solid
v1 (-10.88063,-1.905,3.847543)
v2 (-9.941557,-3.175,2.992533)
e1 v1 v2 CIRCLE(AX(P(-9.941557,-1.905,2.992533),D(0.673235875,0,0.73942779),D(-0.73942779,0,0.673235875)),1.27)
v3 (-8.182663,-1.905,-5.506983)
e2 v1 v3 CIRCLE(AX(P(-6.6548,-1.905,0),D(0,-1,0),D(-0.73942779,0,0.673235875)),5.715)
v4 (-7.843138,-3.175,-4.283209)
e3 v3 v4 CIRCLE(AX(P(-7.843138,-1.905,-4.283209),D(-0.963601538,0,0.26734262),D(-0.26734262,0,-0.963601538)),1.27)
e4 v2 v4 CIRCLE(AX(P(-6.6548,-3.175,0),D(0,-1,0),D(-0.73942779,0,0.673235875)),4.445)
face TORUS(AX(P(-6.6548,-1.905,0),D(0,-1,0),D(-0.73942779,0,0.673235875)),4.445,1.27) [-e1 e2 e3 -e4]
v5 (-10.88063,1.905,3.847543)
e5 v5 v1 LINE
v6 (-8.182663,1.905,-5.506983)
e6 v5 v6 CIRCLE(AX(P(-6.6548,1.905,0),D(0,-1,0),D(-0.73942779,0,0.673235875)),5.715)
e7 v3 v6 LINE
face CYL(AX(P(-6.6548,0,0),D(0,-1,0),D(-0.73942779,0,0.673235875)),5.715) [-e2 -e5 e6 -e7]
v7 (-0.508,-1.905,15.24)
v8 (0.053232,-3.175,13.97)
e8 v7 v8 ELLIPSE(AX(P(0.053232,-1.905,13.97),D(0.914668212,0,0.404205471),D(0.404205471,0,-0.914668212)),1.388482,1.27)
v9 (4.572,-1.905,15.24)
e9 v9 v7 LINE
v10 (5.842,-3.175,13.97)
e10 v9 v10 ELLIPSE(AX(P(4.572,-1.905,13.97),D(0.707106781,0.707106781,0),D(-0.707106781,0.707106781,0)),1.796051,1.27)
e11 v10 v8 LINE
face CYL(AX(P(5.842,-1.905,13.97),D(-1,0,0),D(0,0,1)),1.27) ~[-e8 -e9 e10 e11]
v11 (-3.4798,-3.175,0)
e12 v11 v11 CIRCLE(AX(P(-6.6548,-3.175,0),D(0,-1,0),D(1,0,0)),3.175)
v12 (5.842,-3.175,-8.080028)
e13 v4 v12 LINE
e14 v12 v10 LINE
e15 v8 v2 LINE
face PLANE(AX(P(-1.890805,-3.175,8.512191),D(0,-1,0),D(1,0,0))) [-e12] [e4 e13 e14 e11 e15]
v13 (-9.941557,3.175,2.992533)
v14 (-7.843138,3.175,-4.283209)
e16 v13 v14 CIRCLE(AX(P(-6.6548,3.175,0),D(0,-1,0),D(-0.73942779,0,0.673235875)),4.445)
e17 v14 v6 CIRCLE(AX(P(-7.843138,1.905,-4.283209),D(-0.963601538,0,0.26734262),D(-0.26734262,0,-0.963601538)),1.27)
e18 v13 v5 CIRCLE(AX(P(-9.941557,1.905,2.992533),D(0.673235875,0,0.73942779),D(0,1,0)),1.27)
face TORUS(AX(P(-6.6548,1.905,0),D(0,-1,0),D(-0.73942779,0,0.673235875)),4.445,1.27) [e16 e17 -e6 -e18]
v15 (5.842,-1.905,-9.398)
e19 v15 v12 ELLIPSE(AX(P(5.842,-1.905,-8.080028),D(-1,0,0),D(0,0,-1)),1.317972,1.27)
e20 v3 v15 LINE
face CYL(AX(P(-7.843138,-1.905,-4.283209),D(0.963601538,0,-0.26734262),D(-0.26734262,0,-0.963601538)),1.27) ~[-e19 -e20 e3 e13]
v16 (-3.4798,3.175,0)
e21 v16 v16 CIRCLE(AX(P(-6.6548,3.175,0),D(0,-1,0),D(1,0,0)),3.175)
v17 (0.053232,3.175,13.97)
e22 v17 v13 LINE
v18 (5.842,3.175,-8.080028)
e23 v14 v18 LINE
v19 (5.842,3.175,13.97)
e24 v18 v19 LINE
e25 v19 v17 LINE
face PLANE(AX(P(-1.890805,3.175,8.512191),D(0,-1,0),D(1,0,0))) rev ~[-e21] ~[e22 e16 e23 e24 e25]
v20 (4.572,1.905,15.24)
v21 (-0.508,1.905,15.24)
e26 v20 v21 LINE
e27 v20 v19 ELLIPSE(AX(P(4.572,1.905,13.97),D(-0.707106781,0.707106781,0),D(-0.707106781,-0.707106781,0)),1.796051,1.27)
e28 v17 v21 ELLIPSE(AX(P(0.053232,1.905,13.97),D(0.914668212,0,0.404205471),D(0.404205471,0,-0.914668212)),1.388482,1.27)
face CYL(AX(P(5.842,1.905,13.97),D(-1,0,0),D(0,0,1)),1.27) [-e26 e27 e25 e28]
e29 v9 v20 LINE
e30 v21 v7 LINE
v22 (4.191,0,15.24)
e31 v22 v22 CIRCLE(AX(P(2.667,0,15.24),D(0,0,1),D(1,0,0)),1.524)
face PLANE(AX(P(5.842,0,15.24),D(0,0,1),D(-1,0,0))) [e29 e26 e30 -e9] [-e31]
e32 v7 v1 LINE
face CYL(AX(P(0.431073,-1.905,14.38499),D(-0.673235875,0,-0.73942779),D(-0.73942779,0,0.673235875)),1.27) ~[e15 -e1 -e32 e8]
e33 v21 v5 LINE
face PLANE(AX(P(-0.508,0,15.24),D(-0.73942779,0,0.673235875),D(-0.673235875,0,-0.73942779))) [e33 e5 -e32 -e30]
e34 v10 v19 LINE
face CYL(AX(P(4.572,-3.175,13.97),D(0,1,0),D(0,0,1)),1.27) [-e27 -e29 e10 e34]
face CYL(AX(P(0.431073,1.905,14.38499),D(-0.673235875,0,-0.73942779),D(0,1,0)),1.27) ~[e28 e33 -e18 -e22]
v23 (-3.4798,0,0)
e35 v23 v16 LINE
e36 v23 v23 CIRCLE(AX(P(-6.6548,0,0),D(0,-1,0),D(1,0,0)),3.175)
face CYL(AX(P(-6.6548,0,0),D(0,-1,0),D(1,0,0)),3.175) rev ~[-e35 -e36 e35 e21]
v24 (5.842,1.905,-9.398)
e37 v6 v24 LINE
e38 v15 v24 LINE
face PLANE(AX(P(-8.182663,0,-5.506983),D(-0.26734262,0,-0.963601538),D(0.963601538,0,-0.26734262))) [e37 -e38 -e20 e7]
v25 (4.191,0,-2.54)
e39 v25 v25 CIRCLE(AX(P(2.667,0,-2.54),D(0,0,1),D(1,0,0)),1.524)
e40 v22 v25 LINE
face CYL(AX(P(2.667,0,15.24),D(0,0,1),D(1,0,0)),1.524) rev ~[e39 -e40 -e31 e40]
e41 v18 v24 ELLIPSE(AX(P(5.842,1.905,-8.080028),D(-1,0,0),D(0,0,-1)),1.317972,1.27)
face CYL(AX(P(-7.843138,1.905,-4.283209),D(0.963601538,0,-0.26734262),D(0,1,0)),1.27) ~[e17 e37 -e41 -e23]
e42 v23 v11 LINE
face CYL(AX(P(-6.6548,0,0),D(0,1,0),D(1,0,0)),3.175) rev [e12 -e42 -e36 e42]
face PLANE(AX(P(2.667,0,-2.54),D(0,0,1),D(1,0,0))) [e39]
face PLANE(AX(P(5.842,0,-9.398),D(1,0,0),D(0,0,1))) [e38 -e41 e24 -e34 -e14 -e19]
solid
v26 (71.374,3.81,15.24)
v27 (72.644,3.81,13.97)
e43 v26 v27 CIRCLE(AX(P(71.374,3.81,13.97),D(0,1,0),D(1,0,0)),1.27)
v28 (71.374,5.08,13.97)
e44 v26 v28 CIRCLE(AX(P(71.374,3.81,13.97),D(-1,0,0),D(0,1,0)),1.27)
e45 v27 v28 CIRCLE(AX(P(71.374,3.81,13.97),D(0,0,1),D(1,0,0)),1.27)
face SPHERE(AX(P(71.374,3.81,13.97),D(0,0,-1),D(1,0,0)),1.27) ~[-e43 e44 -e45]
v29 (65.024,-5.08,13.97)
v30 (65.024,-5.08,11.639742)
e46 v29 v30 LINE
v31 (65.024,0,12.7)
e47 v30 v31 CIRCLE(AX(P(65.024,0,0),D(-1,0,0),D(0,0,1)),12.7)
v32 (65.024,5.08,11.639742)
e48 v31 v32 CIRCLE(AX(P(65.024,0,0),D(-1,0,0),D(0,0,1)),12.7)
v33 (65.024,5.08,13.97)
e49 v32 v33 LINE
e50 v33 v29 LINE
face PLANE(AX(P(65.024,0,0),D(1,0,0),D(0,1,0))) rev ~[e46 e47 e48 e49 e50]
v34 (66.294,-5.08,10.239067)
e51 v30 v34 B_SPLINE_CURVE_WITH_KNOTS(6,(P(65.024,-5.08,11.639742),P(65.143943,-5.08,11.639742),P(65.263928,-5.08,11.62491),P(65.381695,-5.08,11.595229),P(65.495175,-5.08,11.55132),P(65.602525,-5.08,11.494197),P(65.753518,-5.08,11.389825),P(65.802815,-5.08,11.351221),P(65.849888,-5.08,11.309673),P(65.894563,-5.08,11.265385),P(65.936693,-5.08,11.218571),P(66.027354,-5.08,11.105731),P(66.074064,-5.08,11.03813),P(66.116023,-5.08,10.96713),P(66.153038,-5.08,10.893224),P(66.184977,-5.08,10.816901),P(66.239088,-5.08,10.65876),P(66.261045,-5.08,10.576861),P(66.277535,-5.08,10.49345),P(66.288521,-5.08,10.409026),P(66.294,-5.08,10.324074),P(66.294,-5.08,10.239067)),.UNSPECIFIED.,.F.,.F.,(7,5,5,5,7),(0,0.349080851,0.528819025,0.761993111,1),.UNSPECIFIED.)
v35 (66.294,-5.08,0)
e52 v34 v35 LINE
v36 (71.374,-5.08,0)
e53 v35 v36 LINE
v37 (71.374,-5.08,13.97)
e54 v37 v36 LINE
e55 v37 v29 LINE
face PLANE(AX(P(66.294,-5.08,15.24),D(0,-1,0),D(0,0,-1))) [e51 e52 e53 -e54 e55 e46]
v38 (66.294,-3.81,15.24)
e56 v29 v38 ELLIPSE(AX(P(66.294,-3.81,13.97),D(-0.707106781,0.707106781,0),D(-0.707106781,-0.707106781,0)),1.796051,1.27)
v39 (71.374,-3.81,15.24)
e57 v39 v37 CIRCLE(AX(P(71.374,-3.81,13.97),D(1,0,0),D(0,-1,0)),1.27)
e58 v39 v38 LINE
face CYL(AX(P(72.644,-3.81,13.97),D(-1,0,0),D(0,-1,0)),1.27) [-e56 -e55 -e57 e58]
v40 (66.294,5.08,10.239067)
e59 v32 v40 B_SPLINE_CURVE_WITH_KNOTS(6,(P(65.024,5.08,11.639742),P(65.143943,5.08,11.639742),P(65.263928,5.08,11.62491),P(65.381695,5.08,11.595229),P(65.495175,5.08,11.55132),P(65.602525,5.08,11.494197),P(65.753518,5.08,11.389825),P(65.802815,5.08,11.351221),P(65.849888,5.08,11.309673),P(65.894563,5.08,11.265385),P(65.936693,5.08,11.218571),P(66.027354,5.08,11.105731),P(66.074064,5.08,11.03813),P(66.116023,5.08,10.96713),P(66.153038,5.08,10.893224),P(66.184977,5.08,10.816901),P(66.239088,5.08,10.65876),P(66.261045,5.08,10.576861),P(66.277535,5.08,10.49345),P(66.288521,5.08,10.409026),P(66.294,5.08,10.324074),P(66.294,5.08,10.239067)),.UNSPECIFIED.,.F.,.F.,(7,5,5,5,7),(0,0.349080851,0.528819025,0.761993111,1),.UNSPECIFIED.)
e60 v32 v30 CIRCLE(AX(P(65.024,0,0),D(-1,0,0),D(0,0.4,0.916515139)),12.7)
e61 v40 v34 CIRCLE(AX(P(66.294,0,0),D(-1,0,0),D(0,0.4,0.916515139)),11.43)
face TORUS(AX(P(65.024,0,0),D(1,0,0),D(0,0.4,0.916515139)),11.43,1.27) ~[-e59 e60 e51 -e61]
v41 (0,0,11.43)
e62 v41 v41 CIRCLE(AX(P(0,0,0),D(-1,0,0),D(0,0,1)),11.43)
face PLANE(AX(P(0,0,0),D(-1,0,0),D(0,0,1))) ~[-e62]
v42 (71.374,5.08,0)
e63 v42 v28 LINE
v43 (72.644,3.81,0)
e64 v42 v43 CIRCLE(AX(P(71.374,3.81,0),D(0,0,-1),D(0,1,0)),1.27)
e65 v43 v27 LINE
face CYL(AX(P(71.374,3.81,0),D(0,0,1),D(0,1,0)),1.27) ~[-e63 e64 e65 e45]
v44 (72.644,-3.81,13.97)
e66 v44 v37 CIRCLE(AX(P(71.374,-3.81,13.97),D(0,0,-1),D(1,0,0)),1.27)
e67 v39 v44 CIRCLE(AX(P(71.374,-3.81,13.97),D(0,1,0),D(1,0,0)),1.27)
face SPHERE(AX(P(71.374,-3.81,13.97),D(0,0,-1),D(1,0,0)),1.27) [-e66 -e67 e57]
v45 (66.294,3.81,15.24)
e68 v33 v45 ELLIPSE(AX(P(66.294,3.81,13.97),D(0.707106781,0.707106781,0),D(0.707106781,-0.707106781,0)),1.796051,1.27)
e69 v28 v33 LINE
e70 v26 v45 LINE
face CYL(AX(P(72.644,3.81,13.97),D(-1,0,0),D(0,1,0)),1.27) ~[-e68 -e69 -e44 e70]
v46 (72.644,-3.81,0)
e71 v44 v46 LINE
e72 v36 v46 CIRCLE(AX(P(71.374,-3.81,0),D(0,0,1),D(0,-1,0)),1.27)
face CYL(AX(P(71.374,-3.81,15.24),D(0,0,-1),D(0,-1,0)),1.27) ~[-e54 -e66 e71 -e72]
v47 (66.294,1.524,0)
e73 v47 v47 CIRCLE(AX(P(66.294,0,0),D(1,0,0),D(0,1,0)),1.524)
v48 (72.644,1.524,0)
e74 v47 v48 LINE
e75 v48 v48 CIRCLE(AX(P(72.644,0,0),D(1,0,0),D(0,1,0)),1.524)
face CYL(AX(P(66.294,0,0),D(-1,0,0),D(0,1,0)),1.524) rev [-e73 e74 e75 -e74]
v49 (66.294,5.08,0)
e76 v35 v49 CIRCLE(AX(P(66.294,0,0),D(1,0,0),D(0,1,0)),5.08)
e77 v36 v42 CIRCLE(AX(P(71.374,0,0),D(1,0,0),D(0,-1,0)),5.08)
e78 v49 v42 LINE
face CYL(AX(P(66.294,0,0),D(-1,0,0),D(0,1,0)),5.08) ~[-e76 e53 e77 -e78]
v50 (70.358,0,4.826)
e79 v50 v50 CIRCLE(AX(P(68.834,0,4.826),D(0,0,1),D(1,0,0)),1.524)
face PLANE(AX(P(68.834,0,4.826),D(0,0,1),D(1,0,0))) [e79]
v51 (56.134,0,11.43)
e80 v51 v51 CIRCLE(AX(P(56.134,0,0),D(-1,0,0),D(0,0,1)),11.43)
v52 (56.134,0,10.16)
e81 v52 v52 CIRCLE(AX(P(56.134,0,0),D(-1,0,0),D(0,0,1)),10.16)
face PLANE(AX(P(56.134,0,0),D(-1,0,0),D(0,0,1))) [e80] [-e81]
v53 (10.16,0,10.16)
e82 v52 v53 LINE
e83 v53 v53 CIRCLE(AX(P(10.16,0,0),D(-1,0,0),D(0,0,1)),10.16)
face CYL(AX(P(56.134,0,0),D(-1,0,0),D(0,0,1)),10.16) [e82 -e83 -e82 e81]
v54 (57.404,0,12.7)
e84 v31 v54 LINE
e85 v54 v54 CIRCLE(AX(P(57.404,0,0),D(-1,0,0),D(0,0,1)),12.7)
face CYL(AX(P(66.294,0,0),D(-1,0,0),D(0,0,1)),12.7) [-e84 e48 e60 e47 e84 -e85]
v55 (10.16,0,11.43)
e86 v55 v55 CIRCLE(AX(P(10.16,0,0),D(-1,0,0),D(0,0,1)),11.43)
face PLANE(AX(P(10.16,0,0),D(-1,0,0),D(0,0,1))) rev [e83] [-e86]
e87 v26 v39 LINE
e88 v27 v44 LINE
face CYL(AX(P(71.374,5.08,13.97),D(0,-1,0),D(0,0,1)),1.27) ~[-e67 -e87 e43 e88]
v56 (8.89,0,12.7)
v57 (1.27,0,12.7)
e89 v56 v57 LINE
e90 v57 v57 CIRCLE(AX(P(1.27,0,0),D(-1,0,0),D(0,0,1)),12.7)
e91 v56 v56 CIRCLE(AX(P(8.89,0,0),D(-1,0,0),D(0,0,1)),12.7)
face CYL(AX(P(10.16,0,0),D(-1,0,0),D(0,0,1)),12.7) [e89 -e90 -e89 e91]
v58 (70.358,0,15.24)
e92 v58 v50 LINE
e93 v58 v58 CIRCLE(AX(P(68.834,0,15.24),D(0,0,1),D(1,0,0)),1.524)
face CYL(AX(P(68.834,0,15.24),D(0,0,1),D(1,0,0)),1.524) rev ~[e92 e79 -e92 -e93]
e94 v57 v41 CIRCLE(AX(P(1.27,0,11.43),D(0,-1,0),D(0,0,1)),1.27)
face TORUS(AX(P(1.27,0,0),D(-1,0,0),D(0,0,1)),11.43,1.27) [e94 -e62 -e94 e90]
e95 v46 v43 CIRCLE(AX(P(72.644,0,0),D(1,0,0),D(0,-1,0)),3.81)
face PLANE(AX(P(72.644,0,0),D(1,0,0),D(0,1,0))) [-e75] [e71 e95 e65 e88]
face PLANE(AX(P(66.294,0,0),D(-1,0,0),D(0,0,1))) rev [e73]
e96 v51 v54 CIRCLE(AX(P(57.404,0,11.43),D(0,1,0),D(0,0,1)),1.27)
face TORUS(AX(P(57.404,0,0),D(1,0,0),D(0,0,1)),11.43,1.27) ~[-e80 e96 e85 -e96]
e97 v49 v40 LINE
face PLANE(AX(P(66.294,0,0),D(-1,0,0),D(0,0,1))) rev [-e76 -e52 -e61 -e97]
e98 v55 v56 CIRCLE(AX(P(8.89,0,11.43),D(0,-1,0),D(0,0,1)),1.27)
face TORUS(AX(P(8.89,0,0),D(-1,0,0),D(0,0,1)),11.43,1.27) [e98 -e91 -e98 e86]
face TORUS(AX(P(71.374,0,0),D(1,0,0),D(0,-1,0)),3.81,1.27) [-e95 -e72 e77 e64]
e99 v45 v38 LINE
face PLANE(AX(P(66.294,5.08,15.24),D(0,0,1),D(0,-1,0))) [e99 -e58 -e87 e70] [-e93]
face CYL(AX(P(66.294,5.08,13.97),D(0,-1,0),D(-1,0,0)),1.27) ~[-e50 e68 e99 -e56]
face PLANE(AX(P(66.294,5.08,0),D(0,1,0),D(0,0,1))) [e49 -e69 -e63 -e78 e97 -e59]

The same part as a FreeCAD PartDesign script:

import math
import FreeCAD as App
import Part
import Sketcher
from FreeCAD import Vector
Q = App.Units.Quantity


def edges_at(feature, points):
    """Names of the edges that pass closest to the given points."""
    edges = feature.Shape.Edges
    near = lambda p: min(range(len(edges)), key=lambda i: edges[i].distToShape(Part.Vertex(*p))[0])
    return sorted({f"Edge{near(p) + 1}" for p in points})


def add_polygon(sketch, points):
    """Adds a closed chain of lines whose ends are joined by coincident constraints."""
    first, n = sketch.GeometryCount, len(points)
    for a, b in zip(points, points[1:] + points[:1]):
        sketch.addGeometry(Part.LineSegment(App.Vector(*a, 0), App.Vector(*b, 0)), False)
    for i in range(n):
        sketch.addConstraint(Sketcher.Constraint("Coincident", first + i, 2, first + (i + 1) % n, 1))

doc = App.newDocument("Part")
body = doc.addObject("PartDesign::Body", "Body")

sketch1 = doc.addObject("Sketcher::SketchObject", "Sketch")
body.addObject(sketch1)
sketch1.AttachmentSupport = (doc.XZ_Plane, [""])
sketch1.MapMode = "FlatFace"
add_polygon(sketch1, [(66.3, 0), (66.3, 12.7), (56.1, 12.7), (56.1, 10.2), (10.2, 10.2), (10.2, 12.7), (0, 12.7), (0, 0)])
sketch1.addConstraint(Sketcher.Constraint("Vertical", 0))
sketch1.addConstraint(Sketcher.Constraint("Horizontal", 1))
sketch1.addConstraint(Sketcher.Constraint("Vertical", 2))
sketch1.addConstraint(Sketcher.Constraint("Horizontal", 3))
sketch1.addConstraint(Sketcher.Constraint("Vertical", 4))
sketch1.addConstraint(Sketcher.Constraint("Horizontal", 5))
sketch1.addConstraint(Sketcher.Constraint("Vertical", 6))
sketch1.addConstraint(Sketcher.Constraint("Horizontal", 7))
sketch1.addConstraint(Sketcher.Constraint("Coincident", 6, 2, -1, 1))
sketch1.addConstraint(Sketcher.Constraint("Horizontal", 1, 2, 4, 2))
sketch1.addConstraint(Sketcher.Constraint("Equal", 1, 5))
sketch1.addConstraint(Sketcher.Constraint("DistanceX", 1, 2, 1, 1, Q("0.4 in")))
sketch1.addConstraint(Sketcher.Constraint("DistanceY", 0, 1, 0, 2, Q("0.5 in")))
sketch1.addConstraint(Sketcher.Constraint("DistanceY", 2, 2, 2, 1, Q("0.1 in")))
sketch1.addConstraint(Sketcher.Constraint("DistanceX", 3, 2, 3, 1, Q("1.81 in")))
revolution = doc.addObject("PartDesign::Revolution", "Revolution")
body.addObject(revolution)
revolution.Profile = sketch1
revolution.ReferenceAxis = (sketch1, ["H_Axis"])
revolution.Angle = 360

sketch2 = doc.addObject("Sketcher::SketchObject", "Sketch001")
body.addObject(sketch2)
sketch2.AttachmentSupport = (doc.YZ_Plane, [""])
sketch2.MapMode = "FlatFace"
sketch2.AttachmentOffset = App.Placement(Vector(0, 0, 2.61 * 25.4), App.Rotation())
sketch2.addGeometry(Part.ArcOfCircle(Part.Circle(Vector(0, 0, 0), Vector(0, 0, 1), 5.1), math.radians(180), math.radians(360)), False)
sketch2.addGeometry(Part.LineSegment(Vector(5.1, 0, 0), Vector(5.1, 15.2, 0)), False)
sketch2.addGeometry(Part.LineSegment(Vector(5.1, 15.2, 0), Vector(-5.1, 15.2, 0)), False)
sketch2.addGeometry(Part.LineSegment(Vector(-5.1, 15.2, 0), Vector(-5.1, 0, 0)), False)
sketch2.addGeometry(Part.Circle(Vector(0, 0, 0), Vector(0, 0, 1), 1.5), False)
sketch2.addConstraint(Sketcher.Constraint("Tangent", 0, 2, 1, 1))
sketch2.addConstraint(Sketcher.Constraint("Coincident", 1, 2, 2, 1))
sketch2.addConstraint(Sketcher.Constraint("Coincident", 2, 2, 3, 1))
sketch2.addConstraint(Sketcher.Constraint("Tangent", 3, 2, 0, 1))
sketch2.addConstraint(Sketcher.Constraint("Vertical", 1))
sketch2.addConstraint(Sketcher.Constraint("Horizontal", 2))
sketch2.addConstraint(Sketcher.Constraint("Vertical", 3))
sketch2.addConstraint(Sketcher.Constraint("Coincident", 0, 3, -1, 1))
sketch2.addConstraint(Sketcher.Constraint("Coincident", 4, 3, -1, 1))
sketch2.addConstraint(Sketcher.Constraint("Radius", 0, Q("0.2 in")))
sketch2.addConstraint(Sketcher.Constraint("Diameter", 4, Q("0.12 in")))
sketch2.addConstraint(Sketcher.Constraint("DistanceY", 1, 1, 1, 2, Q("0.6 in")))
pad1 = doc.addObject("PartDesign::Pad", "Pad")
body.addObject(pad1)
pad1.Profile = sketch2
pad1.Type = "TwoLengths"
pad1.Length = Q("0.25 in")
pad1.Length2 = Q("0.05 in")

sketch3 = doc.addObject("Sketcher::SketchObject", "Sketch002")
body.addObject(sketch3)
sketch3.AttachmentSupport = (doc.XY_Plane, [""])
sketch3.MapMode = "FlatFace"
sketch3.AttachmentOffset = App.Placement(Vector(0, 0, 0.6 * 25.4), App.Rotation())
sketch3.addGeometry(Part.Circle(Vector(68.8, 0, 0), Vector(0, 0, 1), 1.5), False)
sketch3.addConstraint(Sketcher.Constraint("PointOnObject", 0, 3, -1))
sketch3.addConstraint(Sketcher.Constraint("Diameter", 0, Q("0.12 in")))
sketch3.addConstraint(Sketcher.Constraint("DistanceX", -1, 1, 0, 3, Q("2.71 in")))
pocket1 = doc.addObject("PartDesign::Pocket", "Pocket")
body.addObject(pocket1)
pocket1.Profile = sketch3
pocket1.Length = Q("0.41 in")
doc.recompute()

fillet = doc.addObject("PartDesign::Fillet", "Fillet")
body.addObject(fillet)
fillet.Base = (pocket1, edges_at(pocket1, [(0, 0, -12.7), (10.16, 0, -12.7)]))
fillet.Radius = Q("0.05 in")
doc.recompute()

fillet2 = doc.addObject("PartDesign::Fillet", "Fillet001")
body.addObject(fillet2)
fillet2.Base = (fillet, edges_at(fillet, [
    (72.644, -5.08, 7.62),
    (72.644, 0, -5.08),
    (72.644, 5.08, 7.62),
    (72.644, 0, 15.24),
    (65.024, 0, 15.24),
    (68.834, -5.08, 15.24),
    (68.834, 5.08, 15.24),
    (66.294, 0, -12.7),
    (56.134, 0, -12.7),
]))
fillet2.Radius = Q("0.05 in")
body2 = doc.addObject("PartDesign::Body", "Body001")

sketch4 = doc.addObject("Sketcher::SketchObject", "Sketch003")
body2.addObject(sketch4)
sketch4.AttachmentSupport = (doc.getObject("XZ_Plane001"), [""])
sketch4.MapMode = "FlatFace"
sketch4.addGeometry(Part.LineSegment(Vector(5.8, 15.2, 0), Vector(-0.5, 15.2, 0)), False)
sketch4.addGeometry(Part.LineSegment(Vector(-0.5, 15.2, 0), Vector(-10.9, 3.8, 0)), False)
sketch4.addGeometry(Part.ArcOfCircle(Part.Circle(Vector(-6.7, 0, 0), Vector(0, 0, 1), 5.7), math.radians(138), math.radians(254)), False)
sketch4.addGeometry(Part.LineSegment(Vector(-8.2, -5.5, 0), Vector(5.8, -9.4, 0)), False)
sketch4.addGeometry(Part.LineSegment(Vector(5.8, -9.4, 0), Vector(5.8, 15.2, 0)), False)
sketch4.addGeometry(Part.Circle(Vector(-6.7, 0, 0), Vector(0, 0, 1), 3.2), False)
sketch4.addConstraint(Sketcher.Constraint("Coincident", 0, 2, 1, 1))
sketch4.addConstraint(Sketcher.Constraint("Tangent", 1, 2, 2, 1))
sketch4.addConstraint(Sketcher.Constraint("Tangent", 2, 2, 3, 1))
sketch4.addConstraint(Sketcher.Constraint("Coincident", 3, 2, 4, 1))
sketch4.addConstraint(Sketcher.Constraint("Coincident", 4, 2, 0, 1))
sketch4.addConstraint(Sketcher.Constraint("Horizontal", 0))
sketch4.addConstraint(Sketcher.Constraint("Vertical", 4))
sketch4.addConstraint(Sketcher.Constraint("Coincident", 5, 3, 2, 3))
sketch4.addConstraint(Sketcher.Constraint("PointOnObject", 2, 3, -1))
sketch4.addConstraint(Sketcher.Constraint("Diameter", 5, Q("0.25 in")))
sketch4.addConstraint(Sketcher.Constraint("Radius", 2, Q("0.225 in")))
sketch4.addConstraint(Sketcher.Constraint("DistanceX", 0, 2, 0, 1, Q("0.25 in")))
sketch4.addConstraint(Sketcher.Constraint("DistanceY", 4, 1, 4, 2, Q("0.97 in")))
sketch4.addConstraint(Sketcher.Constraint("DistanceY", -1, 1, 0, 2, Q("0.6 in")))
sketch4.addConstraint(Sketcher.Constraint("DistanceX", 0, 2, -1, 1, Q("0.02 in")))
sketch4.addConstraint(Sketcher.Constraint("DistanceX", 2, 3, -1, 1, Q("0.262 in")))
pad2 = doc.addObject("PartDesign::Pad", "Pad001")
body2.addObject(pad2)
pad2.Profile = sketch4
pad2.Type = "TwoLengths"
pad2.Length = Q("0.125 in")
pad2.Length2 = Q("0.125 in")

sketch5 = doc.addObject("Sketcher::SketchObject", "Sketch004")
body2.addObject(sketch5)
sketch5.AttachmentSupport = (doc.getObject("XY_Plane001"), [""])
sketch5.MapMode = "FlatFace"
sketch5.AttachmentOffset = App.Placement(Vector(0, 0, 0.6 * 25.4), App.Rotation())
sketch5.addGeometry(Part.Circle(Vector(2.7, 0, 0), Vector(0, 0, 1), 1.5), False)
sketch5.addConstraint(Sketcher.Constraint("PointOnObject", 0, 3, -1))
sketch5.addConstraint(Sketcher.Constraint("Diameter", 0, Q("0.12 in")))
sketch5.addConstraint(Sketcher.Constraint("DistanceX", -1, 1, 0, 3, Q("0.105 in")))
pocket2 = doc.addObject("PartDesign::Pocket", "Pocket001")
body2.addObject(pocket2)
pocket2.Profile = sketch5
pocket2.Length = Q("0.7 in")
doc.recompute()

fillet3 = doc.addObject("PartDesign::Fillet", "Fillet002")
body2.addObject(fillet3)
fillet3.Base = (pocket2, edges_at(pocket2, [
    (-5.694, -3.175, 9.544),
    (-5.694, 3.175, 9.544),
    (-12.146, 3.175, -1.584),
    (-1.17, -3.175, -7.452),
    (-12.146, -3.175, -1.584),
    (-1.17, 3.175, -7.452),
    (2.667, -3.175, 15.24),
    (2.667, 3.175, 15.24),
    (5.842, 0, 15.24),
]))
fillet3.Radius = Q("0.05 in")

doc.recompute()
